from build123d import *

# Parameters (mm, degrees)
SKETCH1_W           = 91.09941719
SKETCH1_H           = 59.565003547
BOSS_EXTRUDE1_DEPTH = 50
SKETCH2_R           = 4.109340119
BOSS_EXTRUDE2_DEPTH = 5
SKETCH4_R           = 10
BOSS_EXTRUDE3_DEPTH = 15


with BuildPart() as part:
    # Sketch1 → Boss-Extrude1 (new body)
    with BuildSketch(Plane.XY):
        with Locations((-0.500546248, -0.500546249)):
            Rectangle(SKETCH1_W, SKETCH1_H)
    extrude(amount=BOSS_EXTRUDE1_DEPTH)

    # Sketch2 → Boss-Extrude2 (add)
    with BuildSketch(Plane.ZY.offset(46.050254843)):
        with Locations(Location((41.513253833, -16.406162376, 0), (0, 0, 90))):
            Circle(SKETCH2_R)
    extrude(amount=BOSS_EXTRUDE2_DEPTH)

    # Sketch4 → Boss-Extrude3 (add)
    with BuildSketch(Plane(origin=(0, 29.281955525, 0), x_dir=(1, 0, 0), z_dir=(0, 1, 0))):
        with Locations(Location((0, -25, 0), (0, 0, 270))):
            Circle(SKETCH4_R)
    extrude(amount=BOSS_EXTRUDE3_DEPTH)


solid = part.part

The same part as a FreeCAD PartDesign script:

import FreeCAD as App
import Part
import Sketcher

V = App.Vector
Q = App.Units.Quantity


def add_polygon(sketch, points):
    """Adds a closed chain of lines whose ends are joined by coincident constraints."""
    first, n = sketch.GeometryCount, len(points)
    for a, b in zip(points, points[1:] + points[:1]):
        sketch.addGeometry(Part.LineSegment(App.Vector(*a, 0), App.Vector(*b, 0)), False)
    for i in range(n):
        sketch.addConstraint(Sketcher.Constraint("Coincident", first + i, 2, first + (i + 1) % n, 1))

doc = App.newDocument("Part")
body = doc.addObject("PartDesign::Body", "Body")

# Sketch on XY plane
sketch1 = doc.addObject("Sketcher::SketchObject", "Sketch")
body.addObject(sketch1)
sketch1.AttachmentSupport = (doc.XY_Plane, [""])
sketch1.MapMode = "FlatFace"
add_polygon(sketch1, [(-46, 29), (-46, -30), (45, -30), (45, 29)])  # lines 0-3
sketch1.addConstraint([
    Sketcher.Constraint("Vertical", 0),
    Sketcher.Constraint("Horizontal", 1),
    Sketcher.Constraint("Vertical", 2),
    Sketcher.Constraint("Horizontal", 3),
    Sketcher.Constraint("DistanceX", 1, 1, 1, 2, Q("91.099417 mm")),
    Sketcher.Constraint("DistanceY", 0, 2, 0, 1, Q("59.565004 mm")),
    Sketcher.Constraint("DistanceY", 0, 2, -1, 1, Q("30.283048 mm")),
    Sketcher.Constraint("DistanceX", 0, 2, -1, 1, Q("46.050255 mm")),
])
pad1 = doc.addObject("PartDesign::Pad", "Pad")
body.addObject(pad1)
pad1.Profile = sketch1
pad1.Length = 50

# Sketch on YZ plane
sketch2 = doc.addObject("Sketcher::SketchObject", "Sketch001")
body.addObject(sketch2)
sketch2.AttachmentSupport = (doc.YZ_Plane, [""])
sketch2.MapMode = "FlatFace"
sketch2.AttachmentOffset = App.Placement(V(0, 0, -46.050255), App.Rotation())
sketch2.addGeometry(Part.Circle(V(-16.4, 41.5, 0), V(0, 0, 1), 4.1), False)
sketch2.addConstraint([
    Sketcher.Constraint("Diameter", 0, Q("8.21868 mm")),
    Sketcher.Constraint("DistanceX", 0, 3, -1, 1, Q("16.406162 mm")),
    Sketcher.Constraint("DistanceY", -1, 1, 0, 3, Q("41.513254 mm")),
])
pad2 = doc.addObject("PartDesign::Pad", "Pad001")
body.addObject(pad2)
pad2.Profile = sketch2
pad2.Length = 5
pad2.Reversed = True

# Sketch on XZ plane
sketch3 = doc.addObject("Sketcher::SketchObject", "Sketch002")
body.addObject(sketch3)
sketch3.AttachmentSupport = (doc.XZ_Plane, [""])
sketch3.MapMode = "FlatFace"
sketch3.AttachmentOffset = App.Placement(V(0, 0, -29.281956), App.Rotation())
sketch3.addGeometry(Part.Circle(V(0, 25, 0), V(0, 0, 1), 10), False)
sketch3.addConstraint([
    Sketcher.Constraint("PointOnObject", 0, 3, -2),
    Sketcher.Constraint("Diameter", 0, Q("20 mm")),
    Sketcher.Constraint("DistanceY", -1, 1, 0, 3, Q("25 mm")),
])
pad3 = doc.addObject("PartDesign::Pad", "Pad002")
body.addObject(pad3)
pad3.Profile = sketch3
pad3.Length = 15
pad3.Reversed = True

doc.recompute()
